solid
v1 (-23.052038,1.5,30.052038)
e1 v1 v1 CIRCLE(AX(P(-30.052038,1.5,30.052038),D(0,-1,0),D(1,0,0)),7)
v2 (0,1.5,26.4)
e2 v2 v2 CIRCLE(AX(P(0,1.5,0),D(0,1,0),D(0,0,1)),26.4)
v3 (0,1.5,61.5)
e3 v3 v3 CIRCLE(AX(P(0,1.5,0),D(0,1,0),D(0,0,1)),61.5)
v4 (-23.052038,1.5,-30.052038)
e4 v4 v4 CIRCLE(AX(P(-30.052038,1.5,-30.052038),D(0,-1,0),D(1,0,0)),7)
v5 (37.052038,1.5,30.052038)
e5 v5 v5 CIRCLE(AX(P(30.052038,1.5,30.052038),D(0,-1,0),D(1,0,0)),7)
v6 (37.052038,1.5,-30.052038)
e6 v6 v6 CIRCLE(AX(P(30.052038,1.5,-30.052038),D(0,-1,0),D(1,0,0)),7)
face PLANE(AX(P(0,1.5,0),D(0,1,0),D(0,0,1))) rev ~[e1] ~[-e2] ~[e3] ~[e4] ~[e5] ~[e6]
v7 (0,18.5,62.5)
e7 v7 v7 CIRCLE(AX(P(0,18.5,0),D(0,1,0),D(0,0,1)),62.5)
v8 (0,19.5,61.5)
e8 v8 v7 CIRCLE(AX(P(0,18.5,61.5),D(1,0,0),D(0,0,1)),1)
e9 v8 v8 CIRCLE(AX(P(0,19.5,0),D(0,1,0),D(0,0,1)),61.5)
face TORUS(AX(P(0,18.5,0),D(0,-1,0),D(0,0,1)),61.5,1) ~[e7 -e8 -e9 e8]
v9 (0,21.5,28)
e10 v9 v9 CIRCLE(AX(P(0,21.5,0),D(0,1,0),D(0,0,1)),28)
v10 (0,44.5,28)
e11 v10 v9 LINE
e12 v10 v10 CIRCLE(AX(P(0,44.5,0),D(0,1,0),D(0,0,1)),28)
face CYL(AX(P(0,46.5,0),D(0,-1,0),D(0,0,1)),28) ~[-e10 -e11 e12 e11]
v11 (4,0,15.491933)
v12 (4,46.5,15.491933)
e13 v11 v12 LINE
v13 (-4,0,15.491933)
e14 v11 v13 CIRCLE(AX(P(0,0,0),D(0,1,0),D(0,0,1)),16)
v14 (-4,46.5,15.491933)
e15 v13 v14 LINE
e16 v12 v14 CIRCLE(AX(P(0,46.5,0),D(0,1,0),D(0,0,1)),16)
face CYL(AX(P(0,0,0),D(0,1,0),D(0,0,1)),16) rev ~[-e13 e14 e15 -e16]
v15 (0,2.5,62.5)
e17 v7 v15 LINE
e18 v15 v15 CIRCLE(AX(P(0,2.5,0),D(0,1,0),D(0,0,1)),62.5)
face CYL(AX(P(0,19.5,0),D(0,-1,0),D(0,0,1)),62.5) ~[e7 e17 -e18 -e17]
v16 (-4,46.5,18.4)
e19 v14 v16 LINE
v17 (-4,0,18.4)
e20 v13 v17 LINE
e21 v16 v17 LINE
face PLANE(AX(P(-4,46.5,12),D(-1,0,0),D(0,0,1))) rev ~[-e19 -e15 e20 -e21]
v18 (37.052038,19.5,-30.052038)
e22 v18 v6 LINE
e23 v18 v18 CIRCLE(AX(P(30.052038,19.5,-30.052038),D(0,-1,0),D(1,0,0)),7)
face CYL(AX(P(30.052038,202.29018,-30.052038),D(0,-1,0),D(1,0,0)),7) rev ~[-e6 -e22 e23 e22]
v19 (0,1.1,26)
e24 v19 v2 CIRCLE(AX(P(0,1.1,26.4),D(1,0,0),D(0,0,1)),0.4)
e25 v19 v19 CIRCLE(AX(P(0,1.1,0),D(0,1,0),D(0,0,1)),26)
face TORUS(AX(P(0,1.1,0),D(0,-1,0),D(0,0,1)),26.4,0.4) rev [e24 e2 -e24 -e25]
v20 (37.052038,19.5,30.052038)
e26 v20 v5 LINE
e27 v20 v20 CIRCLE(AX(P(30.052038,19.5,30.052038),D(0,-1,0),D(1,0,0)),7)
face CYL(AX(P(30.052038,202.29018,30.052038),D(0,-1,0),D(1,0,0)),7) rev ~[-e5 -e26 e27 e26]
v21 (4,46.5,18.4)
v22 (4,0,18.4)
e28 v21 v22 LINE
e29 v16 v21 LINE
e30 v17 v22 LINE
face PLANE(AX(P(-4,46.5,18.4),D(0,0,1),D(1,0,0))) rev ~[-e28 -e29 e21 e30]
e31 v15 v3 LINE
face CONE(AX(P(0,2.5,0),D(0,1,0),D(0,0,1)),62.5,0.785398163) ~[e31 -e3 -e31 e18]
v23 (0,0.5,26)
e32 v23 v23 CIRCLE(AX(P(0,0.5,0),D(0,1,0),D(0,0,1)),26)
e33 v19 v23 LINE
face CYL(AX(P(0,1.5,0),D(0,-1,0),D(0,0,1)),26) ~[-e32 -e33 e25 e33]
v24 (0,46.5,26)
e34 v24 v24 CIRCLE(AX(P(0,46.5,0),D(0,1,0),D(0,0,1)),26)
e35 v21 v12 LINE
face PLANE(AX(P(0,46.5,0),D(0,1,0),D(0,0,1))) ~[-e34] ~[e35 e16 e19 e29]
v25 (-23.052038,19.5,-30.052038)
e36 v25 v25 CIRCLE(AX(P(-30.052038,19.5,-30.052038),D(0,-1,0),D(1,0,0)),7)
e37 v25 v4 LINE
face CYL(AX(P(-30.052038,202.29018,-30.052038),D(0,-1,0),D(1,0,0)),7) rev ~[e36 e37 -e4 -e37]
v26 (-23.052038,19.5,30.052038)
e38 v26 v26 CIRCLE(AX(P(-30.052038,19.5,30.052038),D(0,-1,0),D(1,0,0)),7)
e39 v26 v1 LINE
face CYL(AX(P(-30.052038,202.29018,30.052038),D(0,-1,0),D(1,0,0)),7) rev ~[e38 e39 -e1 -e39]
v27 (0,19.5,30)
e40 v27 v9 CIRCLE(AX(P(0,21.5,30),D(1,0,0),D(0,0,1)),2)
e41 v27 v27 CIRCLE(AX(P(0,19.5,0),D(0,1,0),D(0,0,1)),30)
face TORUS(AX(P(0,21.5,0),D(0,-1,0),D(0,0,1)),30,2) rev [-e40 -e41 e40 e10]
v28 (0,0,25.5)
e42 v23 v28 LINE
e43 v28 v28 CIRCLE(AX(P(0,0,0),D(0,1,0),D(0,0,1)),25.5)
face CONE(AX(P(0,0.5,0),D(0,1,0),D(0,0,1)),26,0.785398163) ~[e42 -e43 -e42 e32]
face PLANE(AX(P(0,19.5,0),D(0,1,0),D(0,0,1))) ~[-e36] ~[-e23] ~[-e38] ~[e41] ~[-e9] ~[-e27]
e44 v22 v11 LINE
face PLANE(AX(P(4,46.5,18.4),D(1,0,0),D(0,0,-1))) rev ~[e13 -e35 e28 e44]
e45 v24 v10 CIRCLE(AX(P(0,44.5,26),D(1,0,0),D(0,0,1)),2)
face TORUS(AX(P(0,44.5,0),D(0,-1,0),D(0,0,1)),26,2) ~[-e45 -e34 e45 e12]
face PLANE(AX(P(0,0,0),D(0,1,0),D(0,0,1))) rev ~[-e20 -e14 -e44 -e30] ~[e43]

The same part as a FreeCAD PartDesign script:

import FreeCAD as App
import Part
import Sketcher
from FreeCAD import Vector
Q = App.Units.Quantity


def edges_at(feature, points):
    """Names of the edges that pass closest to the given points."""
    edges = feature.Shape.Edges
    near = lambda p: min(range(len(edges)), key=lambda i: edges[i].distToShape(Part.Vertex(*p))[0])
    return sorted({f"Edge{near(p) + 1}" for p in points})

doc = App.newDocument("Part")
body = doc.addObject("PartDesign::Body", "Body")

sketch1 = doc.addObject("Sketcher::SketchObject", "Sketch")
body.addObject(sketch1)
sketch1.AttachmentSupport = (doc.YZ_Plane, [""])
sketch1.MapMode = "FlatFace"
sketch1.addGeometry([
    Part.LineSegment(Vector(1.5, 26, 0), Vector(0, 26, 0)),
    Part.LineSegment(Vector(0, 26, 0), Vector(0, 16, 0)),
    Part.LineSegment(Vector(0, 16, 0), Vector(46.5, 16, 0)),
    Part.LineSegment(Vector(46.5, 16, 0), Vector(46.5, 28, 0)),
    Part.LineSegment(Vector(46.5, 28, 0), Vector(19.5, 28, 0)),
    Part.LineSegment(Vector(19.5, 28, 0), Vector(19.5, 62.5, 0)),
    Part.LineSegment(Vector(19.5, 62.5, 0), Vector(1.5, 62.5, 0)),
    Part.LineSegment(Vector(1.5, 62.5, 0), Vector(1.5, 26, 0)),
], False)
sketch1.addConstraint([
    Sketcher.Constraint("Coincident", 0, 2, 1, 1),
    Sketcher.Constraint("Coincident", 1, 2, 2, 1),
    Sketcher.Constraint("Coincident", 2, 2, 3, 1),
    Sketcher.Constraint("Coincident", 3, 2, 4, 1),
    Sketcher.Constraint("Coincident", 4, 2, 5, 1),
    Sketcher.Constraint("Coincident", 5, 2, 6, 1),
    Sketcher.Constraint("Coincident", 6, 2, 7, 1),
    Sketcher.Constraint("Coincident", 7, 2, 0, 1),
    Sketcher.Constraint("Horizontal", 0),
    Sketcher.Constraint("Vertical", 1),
    Sketcher.Constraint("Horizontal", 2),
    Sketcher.Constraint("Vertical", 3),
    Sketcher.Constraint("Horizontal", 4),
    Sketcher.Constraint("Vertical", 5),
    Sketcher.Constraint("Horizontal", 6),
    Sketcher.Constraint("Vertical", 7),
    Sketcher.Constraint("PointOnObject", 0, 2, -2),
    Sketcher.Constraint("DistanceX", 4, 2, 4, 1, Q("27 mm")),
    Sketcher.Constraint("DistanceX", 6, 2, 6, 1, Q("18 mm")),
    Sketcher.Constraint("DistanceY", 1, 2, 1, 1, Q("10 mm")),
    Sketcher.Constraint("DistanceY", 3, 1, 3, 2, Q("12 mm")),
    Sketcher.Constraint("DistanceX", 0, 2, 0, 1, Q("1.5 mm")),
    Sketcher.Constraint("DistanceY", 5, 1, 5, 2, Q("34.5 mm")),
    Sketcher.Constraint("DistanceY", -1, 1, 0, 2, Q("26 mm")),
])
revolution = doc.addObject("PartDesign::Revolution", "Revolution")
body.addObject(revolution)
revolution.Profile = sketch1
revolution.ReferenceAxis = (sketch1, ["H_Axis"])
revolution.Angle = 360

sketch2 = doc.addObject("Sketcher::SketchObject", "Sketch001")
body.addObject(sketch2)
sketch2.AttachmentSupport = (doc.XZ_Plane, [""])
sketch2.MapMode = "FlatFace"
sketch2.AttachmentOffset = App.Placement(Vector(0, 0, -46.5), App.Rotation())
sketch2.addGeometry([
    Part.LineSegment(Vector(4, 12, 0), Vector(-4, 12, 0)),
    Part.LineSegment(Vector(-4, 12, 0), Vector(-4, 18, 0)),
    Part.LineSegment(Vector(-4, 18, 0), Vector(4, 18, 0)),
    Part.LineSegment(Vector(4, 18, 0), Vector(4, 12, 0)),
], False)
sketch2.addConstraint([
    Sketcher.Constraint("Coincident", 0, 2, 1, 1),
    Sketcher.Constraint("Coincident", 1, 2, 2, 1),
    Sketcher.Constraint("Coincident", 2, 2, 3, 1),
    Sketcher.Constraint("Coincident", 3, 2, 0, 1),
    Sketcher.Constraint("Horizontal", 0),
    Sketcher.Constraint("Vertical", 1),
    Sketcher.Constraint("Horizontal", 2),
    Sketcher.Constraint("Vertical", 3),
    Sketcher.Constraint("DistanceX", 0, 2, 0, 1, Q("8 mm")),
    Sketcher.Constraint("DistanceY", 1, 1, 1, 2, Q("6.4 mm")),
    Sketcher.Constraint("DistanceX", 0, 2, -1, 1, Q("4 mm")),
    Sketcher.Constraint("DistanceY", -1, 1, 0, 2, Q("12 mm")),
])
pocket1 = doc.addObject("PartDesign::Pocket", "Pocket")
body.addObject(pocket1)
pocket1.Profile = sketch2
pocket1.Type = "ThroughAll"
pocket1.Reversed = True

sketch3 = doc.addObject("Sketcher::SketchObject", "Sketch002")
body.addObject(sketch3)
sketch3.AttachmentSupport = (doc.XZ_Plane, [""])
sketch3.MapMode = "FlatFace"
sketch3.AttachmentOffset = App.Placement(Vector(0, 0, -19.5), App.Rotation())
sketch3.addGeometry([
    Part.Circle(Vector(30, 30, 0), Vector(0, 0, 1), 7),
    Part.Circle(Vector(-30, 30, 0), Vector(0, 0, 1), 7),
    Part.Circle(Vector(30, -30, 0), Vector(0, 0, 1), 7),
    Part.Circle(Vector(-30, -30, 0), Vector(0, 0, 1), 7),
], False)
sketch3.addConstraint([
    Sketcher.Constraint("Equal", 0, 1),
    Sketcher.Constraint("Equal", 1, 2),
    Sketcher.Constraint("Equal", 2, 3),
    Sketcher.Constraint("Symmetric", 1, 3, 2, 3, -1, 1),
    Sketcher.Constraint("Symmetric", 0, 3, 3, 3, -1, 1),
    Sketcher.Constraint("Symmetric", 0, 3, 1, 3, -2),
    Sketcher.Constraint("Diameter", 0, Q("14 mm")),
    Sketcher.Constraint("DistanceX", -1, 1, 0, 3, Q("30.052038 mm")),
    Sketcher.Constraint("DistanceY", -1, 1, 0, 3, Q("30.052038 mm")),
])
doc.recompute()
hole = doc.addObject("PartDesign::Hole", "Hole")
body.addObject(hole)
hole.Profile = sketch3
hole.ThreadType = "None"
hole.Diameter = 14
hole.DepthType = "ThroughAll"
hole.Reversed = True
doc.recompute()

fillet = doc.addObject("PartDesign::Fillet", "Fillet")
body.addObject(fillet)
fillet.Base = (hole, edges_at(hole, [(0, 19.5, -28), (0, 46.5, -28)]))
fillet.Radius = 2
doc.recompute()

fillet2 = doc.addObject("PartDesign::Fillet", "Fillet001")
body.addObject(fillet2)
fillet2.Base = (fillet, edges_at(fillet, [(0, 19.5, -62.5)]))
fillet2.Radius = 1
doc.recompute()

chamfer = doc.addObject("PartDesign::Chamfer", "Chamfer")
body.addObject(chamfer)
chamfer.Base = (fillet2, edges_at(fillet2, [(0, 1.5, -62.5)]))
chamfer.Size = 1
doc.recompute()

chamfer2 = doc.addObject("PartDesign::Chamfer", "Chamfer001")
body.addObject(chamfer2)
chamfer2.Base = (chamfer, edges_at(chamfer, [(0, 0, -26)]))
chamfer2.Size = 0.5
doc.recompute()

fillet3 = doc.addObject("PartDesign::Fillet", "Fillet002")
body.addObject(fillet3)
fillet3.Base = (chamfer2, edges_at(chamfer2, [(0, 1.5, -26)]))
fillet3.Radius = 0.4

doc.recompute()
